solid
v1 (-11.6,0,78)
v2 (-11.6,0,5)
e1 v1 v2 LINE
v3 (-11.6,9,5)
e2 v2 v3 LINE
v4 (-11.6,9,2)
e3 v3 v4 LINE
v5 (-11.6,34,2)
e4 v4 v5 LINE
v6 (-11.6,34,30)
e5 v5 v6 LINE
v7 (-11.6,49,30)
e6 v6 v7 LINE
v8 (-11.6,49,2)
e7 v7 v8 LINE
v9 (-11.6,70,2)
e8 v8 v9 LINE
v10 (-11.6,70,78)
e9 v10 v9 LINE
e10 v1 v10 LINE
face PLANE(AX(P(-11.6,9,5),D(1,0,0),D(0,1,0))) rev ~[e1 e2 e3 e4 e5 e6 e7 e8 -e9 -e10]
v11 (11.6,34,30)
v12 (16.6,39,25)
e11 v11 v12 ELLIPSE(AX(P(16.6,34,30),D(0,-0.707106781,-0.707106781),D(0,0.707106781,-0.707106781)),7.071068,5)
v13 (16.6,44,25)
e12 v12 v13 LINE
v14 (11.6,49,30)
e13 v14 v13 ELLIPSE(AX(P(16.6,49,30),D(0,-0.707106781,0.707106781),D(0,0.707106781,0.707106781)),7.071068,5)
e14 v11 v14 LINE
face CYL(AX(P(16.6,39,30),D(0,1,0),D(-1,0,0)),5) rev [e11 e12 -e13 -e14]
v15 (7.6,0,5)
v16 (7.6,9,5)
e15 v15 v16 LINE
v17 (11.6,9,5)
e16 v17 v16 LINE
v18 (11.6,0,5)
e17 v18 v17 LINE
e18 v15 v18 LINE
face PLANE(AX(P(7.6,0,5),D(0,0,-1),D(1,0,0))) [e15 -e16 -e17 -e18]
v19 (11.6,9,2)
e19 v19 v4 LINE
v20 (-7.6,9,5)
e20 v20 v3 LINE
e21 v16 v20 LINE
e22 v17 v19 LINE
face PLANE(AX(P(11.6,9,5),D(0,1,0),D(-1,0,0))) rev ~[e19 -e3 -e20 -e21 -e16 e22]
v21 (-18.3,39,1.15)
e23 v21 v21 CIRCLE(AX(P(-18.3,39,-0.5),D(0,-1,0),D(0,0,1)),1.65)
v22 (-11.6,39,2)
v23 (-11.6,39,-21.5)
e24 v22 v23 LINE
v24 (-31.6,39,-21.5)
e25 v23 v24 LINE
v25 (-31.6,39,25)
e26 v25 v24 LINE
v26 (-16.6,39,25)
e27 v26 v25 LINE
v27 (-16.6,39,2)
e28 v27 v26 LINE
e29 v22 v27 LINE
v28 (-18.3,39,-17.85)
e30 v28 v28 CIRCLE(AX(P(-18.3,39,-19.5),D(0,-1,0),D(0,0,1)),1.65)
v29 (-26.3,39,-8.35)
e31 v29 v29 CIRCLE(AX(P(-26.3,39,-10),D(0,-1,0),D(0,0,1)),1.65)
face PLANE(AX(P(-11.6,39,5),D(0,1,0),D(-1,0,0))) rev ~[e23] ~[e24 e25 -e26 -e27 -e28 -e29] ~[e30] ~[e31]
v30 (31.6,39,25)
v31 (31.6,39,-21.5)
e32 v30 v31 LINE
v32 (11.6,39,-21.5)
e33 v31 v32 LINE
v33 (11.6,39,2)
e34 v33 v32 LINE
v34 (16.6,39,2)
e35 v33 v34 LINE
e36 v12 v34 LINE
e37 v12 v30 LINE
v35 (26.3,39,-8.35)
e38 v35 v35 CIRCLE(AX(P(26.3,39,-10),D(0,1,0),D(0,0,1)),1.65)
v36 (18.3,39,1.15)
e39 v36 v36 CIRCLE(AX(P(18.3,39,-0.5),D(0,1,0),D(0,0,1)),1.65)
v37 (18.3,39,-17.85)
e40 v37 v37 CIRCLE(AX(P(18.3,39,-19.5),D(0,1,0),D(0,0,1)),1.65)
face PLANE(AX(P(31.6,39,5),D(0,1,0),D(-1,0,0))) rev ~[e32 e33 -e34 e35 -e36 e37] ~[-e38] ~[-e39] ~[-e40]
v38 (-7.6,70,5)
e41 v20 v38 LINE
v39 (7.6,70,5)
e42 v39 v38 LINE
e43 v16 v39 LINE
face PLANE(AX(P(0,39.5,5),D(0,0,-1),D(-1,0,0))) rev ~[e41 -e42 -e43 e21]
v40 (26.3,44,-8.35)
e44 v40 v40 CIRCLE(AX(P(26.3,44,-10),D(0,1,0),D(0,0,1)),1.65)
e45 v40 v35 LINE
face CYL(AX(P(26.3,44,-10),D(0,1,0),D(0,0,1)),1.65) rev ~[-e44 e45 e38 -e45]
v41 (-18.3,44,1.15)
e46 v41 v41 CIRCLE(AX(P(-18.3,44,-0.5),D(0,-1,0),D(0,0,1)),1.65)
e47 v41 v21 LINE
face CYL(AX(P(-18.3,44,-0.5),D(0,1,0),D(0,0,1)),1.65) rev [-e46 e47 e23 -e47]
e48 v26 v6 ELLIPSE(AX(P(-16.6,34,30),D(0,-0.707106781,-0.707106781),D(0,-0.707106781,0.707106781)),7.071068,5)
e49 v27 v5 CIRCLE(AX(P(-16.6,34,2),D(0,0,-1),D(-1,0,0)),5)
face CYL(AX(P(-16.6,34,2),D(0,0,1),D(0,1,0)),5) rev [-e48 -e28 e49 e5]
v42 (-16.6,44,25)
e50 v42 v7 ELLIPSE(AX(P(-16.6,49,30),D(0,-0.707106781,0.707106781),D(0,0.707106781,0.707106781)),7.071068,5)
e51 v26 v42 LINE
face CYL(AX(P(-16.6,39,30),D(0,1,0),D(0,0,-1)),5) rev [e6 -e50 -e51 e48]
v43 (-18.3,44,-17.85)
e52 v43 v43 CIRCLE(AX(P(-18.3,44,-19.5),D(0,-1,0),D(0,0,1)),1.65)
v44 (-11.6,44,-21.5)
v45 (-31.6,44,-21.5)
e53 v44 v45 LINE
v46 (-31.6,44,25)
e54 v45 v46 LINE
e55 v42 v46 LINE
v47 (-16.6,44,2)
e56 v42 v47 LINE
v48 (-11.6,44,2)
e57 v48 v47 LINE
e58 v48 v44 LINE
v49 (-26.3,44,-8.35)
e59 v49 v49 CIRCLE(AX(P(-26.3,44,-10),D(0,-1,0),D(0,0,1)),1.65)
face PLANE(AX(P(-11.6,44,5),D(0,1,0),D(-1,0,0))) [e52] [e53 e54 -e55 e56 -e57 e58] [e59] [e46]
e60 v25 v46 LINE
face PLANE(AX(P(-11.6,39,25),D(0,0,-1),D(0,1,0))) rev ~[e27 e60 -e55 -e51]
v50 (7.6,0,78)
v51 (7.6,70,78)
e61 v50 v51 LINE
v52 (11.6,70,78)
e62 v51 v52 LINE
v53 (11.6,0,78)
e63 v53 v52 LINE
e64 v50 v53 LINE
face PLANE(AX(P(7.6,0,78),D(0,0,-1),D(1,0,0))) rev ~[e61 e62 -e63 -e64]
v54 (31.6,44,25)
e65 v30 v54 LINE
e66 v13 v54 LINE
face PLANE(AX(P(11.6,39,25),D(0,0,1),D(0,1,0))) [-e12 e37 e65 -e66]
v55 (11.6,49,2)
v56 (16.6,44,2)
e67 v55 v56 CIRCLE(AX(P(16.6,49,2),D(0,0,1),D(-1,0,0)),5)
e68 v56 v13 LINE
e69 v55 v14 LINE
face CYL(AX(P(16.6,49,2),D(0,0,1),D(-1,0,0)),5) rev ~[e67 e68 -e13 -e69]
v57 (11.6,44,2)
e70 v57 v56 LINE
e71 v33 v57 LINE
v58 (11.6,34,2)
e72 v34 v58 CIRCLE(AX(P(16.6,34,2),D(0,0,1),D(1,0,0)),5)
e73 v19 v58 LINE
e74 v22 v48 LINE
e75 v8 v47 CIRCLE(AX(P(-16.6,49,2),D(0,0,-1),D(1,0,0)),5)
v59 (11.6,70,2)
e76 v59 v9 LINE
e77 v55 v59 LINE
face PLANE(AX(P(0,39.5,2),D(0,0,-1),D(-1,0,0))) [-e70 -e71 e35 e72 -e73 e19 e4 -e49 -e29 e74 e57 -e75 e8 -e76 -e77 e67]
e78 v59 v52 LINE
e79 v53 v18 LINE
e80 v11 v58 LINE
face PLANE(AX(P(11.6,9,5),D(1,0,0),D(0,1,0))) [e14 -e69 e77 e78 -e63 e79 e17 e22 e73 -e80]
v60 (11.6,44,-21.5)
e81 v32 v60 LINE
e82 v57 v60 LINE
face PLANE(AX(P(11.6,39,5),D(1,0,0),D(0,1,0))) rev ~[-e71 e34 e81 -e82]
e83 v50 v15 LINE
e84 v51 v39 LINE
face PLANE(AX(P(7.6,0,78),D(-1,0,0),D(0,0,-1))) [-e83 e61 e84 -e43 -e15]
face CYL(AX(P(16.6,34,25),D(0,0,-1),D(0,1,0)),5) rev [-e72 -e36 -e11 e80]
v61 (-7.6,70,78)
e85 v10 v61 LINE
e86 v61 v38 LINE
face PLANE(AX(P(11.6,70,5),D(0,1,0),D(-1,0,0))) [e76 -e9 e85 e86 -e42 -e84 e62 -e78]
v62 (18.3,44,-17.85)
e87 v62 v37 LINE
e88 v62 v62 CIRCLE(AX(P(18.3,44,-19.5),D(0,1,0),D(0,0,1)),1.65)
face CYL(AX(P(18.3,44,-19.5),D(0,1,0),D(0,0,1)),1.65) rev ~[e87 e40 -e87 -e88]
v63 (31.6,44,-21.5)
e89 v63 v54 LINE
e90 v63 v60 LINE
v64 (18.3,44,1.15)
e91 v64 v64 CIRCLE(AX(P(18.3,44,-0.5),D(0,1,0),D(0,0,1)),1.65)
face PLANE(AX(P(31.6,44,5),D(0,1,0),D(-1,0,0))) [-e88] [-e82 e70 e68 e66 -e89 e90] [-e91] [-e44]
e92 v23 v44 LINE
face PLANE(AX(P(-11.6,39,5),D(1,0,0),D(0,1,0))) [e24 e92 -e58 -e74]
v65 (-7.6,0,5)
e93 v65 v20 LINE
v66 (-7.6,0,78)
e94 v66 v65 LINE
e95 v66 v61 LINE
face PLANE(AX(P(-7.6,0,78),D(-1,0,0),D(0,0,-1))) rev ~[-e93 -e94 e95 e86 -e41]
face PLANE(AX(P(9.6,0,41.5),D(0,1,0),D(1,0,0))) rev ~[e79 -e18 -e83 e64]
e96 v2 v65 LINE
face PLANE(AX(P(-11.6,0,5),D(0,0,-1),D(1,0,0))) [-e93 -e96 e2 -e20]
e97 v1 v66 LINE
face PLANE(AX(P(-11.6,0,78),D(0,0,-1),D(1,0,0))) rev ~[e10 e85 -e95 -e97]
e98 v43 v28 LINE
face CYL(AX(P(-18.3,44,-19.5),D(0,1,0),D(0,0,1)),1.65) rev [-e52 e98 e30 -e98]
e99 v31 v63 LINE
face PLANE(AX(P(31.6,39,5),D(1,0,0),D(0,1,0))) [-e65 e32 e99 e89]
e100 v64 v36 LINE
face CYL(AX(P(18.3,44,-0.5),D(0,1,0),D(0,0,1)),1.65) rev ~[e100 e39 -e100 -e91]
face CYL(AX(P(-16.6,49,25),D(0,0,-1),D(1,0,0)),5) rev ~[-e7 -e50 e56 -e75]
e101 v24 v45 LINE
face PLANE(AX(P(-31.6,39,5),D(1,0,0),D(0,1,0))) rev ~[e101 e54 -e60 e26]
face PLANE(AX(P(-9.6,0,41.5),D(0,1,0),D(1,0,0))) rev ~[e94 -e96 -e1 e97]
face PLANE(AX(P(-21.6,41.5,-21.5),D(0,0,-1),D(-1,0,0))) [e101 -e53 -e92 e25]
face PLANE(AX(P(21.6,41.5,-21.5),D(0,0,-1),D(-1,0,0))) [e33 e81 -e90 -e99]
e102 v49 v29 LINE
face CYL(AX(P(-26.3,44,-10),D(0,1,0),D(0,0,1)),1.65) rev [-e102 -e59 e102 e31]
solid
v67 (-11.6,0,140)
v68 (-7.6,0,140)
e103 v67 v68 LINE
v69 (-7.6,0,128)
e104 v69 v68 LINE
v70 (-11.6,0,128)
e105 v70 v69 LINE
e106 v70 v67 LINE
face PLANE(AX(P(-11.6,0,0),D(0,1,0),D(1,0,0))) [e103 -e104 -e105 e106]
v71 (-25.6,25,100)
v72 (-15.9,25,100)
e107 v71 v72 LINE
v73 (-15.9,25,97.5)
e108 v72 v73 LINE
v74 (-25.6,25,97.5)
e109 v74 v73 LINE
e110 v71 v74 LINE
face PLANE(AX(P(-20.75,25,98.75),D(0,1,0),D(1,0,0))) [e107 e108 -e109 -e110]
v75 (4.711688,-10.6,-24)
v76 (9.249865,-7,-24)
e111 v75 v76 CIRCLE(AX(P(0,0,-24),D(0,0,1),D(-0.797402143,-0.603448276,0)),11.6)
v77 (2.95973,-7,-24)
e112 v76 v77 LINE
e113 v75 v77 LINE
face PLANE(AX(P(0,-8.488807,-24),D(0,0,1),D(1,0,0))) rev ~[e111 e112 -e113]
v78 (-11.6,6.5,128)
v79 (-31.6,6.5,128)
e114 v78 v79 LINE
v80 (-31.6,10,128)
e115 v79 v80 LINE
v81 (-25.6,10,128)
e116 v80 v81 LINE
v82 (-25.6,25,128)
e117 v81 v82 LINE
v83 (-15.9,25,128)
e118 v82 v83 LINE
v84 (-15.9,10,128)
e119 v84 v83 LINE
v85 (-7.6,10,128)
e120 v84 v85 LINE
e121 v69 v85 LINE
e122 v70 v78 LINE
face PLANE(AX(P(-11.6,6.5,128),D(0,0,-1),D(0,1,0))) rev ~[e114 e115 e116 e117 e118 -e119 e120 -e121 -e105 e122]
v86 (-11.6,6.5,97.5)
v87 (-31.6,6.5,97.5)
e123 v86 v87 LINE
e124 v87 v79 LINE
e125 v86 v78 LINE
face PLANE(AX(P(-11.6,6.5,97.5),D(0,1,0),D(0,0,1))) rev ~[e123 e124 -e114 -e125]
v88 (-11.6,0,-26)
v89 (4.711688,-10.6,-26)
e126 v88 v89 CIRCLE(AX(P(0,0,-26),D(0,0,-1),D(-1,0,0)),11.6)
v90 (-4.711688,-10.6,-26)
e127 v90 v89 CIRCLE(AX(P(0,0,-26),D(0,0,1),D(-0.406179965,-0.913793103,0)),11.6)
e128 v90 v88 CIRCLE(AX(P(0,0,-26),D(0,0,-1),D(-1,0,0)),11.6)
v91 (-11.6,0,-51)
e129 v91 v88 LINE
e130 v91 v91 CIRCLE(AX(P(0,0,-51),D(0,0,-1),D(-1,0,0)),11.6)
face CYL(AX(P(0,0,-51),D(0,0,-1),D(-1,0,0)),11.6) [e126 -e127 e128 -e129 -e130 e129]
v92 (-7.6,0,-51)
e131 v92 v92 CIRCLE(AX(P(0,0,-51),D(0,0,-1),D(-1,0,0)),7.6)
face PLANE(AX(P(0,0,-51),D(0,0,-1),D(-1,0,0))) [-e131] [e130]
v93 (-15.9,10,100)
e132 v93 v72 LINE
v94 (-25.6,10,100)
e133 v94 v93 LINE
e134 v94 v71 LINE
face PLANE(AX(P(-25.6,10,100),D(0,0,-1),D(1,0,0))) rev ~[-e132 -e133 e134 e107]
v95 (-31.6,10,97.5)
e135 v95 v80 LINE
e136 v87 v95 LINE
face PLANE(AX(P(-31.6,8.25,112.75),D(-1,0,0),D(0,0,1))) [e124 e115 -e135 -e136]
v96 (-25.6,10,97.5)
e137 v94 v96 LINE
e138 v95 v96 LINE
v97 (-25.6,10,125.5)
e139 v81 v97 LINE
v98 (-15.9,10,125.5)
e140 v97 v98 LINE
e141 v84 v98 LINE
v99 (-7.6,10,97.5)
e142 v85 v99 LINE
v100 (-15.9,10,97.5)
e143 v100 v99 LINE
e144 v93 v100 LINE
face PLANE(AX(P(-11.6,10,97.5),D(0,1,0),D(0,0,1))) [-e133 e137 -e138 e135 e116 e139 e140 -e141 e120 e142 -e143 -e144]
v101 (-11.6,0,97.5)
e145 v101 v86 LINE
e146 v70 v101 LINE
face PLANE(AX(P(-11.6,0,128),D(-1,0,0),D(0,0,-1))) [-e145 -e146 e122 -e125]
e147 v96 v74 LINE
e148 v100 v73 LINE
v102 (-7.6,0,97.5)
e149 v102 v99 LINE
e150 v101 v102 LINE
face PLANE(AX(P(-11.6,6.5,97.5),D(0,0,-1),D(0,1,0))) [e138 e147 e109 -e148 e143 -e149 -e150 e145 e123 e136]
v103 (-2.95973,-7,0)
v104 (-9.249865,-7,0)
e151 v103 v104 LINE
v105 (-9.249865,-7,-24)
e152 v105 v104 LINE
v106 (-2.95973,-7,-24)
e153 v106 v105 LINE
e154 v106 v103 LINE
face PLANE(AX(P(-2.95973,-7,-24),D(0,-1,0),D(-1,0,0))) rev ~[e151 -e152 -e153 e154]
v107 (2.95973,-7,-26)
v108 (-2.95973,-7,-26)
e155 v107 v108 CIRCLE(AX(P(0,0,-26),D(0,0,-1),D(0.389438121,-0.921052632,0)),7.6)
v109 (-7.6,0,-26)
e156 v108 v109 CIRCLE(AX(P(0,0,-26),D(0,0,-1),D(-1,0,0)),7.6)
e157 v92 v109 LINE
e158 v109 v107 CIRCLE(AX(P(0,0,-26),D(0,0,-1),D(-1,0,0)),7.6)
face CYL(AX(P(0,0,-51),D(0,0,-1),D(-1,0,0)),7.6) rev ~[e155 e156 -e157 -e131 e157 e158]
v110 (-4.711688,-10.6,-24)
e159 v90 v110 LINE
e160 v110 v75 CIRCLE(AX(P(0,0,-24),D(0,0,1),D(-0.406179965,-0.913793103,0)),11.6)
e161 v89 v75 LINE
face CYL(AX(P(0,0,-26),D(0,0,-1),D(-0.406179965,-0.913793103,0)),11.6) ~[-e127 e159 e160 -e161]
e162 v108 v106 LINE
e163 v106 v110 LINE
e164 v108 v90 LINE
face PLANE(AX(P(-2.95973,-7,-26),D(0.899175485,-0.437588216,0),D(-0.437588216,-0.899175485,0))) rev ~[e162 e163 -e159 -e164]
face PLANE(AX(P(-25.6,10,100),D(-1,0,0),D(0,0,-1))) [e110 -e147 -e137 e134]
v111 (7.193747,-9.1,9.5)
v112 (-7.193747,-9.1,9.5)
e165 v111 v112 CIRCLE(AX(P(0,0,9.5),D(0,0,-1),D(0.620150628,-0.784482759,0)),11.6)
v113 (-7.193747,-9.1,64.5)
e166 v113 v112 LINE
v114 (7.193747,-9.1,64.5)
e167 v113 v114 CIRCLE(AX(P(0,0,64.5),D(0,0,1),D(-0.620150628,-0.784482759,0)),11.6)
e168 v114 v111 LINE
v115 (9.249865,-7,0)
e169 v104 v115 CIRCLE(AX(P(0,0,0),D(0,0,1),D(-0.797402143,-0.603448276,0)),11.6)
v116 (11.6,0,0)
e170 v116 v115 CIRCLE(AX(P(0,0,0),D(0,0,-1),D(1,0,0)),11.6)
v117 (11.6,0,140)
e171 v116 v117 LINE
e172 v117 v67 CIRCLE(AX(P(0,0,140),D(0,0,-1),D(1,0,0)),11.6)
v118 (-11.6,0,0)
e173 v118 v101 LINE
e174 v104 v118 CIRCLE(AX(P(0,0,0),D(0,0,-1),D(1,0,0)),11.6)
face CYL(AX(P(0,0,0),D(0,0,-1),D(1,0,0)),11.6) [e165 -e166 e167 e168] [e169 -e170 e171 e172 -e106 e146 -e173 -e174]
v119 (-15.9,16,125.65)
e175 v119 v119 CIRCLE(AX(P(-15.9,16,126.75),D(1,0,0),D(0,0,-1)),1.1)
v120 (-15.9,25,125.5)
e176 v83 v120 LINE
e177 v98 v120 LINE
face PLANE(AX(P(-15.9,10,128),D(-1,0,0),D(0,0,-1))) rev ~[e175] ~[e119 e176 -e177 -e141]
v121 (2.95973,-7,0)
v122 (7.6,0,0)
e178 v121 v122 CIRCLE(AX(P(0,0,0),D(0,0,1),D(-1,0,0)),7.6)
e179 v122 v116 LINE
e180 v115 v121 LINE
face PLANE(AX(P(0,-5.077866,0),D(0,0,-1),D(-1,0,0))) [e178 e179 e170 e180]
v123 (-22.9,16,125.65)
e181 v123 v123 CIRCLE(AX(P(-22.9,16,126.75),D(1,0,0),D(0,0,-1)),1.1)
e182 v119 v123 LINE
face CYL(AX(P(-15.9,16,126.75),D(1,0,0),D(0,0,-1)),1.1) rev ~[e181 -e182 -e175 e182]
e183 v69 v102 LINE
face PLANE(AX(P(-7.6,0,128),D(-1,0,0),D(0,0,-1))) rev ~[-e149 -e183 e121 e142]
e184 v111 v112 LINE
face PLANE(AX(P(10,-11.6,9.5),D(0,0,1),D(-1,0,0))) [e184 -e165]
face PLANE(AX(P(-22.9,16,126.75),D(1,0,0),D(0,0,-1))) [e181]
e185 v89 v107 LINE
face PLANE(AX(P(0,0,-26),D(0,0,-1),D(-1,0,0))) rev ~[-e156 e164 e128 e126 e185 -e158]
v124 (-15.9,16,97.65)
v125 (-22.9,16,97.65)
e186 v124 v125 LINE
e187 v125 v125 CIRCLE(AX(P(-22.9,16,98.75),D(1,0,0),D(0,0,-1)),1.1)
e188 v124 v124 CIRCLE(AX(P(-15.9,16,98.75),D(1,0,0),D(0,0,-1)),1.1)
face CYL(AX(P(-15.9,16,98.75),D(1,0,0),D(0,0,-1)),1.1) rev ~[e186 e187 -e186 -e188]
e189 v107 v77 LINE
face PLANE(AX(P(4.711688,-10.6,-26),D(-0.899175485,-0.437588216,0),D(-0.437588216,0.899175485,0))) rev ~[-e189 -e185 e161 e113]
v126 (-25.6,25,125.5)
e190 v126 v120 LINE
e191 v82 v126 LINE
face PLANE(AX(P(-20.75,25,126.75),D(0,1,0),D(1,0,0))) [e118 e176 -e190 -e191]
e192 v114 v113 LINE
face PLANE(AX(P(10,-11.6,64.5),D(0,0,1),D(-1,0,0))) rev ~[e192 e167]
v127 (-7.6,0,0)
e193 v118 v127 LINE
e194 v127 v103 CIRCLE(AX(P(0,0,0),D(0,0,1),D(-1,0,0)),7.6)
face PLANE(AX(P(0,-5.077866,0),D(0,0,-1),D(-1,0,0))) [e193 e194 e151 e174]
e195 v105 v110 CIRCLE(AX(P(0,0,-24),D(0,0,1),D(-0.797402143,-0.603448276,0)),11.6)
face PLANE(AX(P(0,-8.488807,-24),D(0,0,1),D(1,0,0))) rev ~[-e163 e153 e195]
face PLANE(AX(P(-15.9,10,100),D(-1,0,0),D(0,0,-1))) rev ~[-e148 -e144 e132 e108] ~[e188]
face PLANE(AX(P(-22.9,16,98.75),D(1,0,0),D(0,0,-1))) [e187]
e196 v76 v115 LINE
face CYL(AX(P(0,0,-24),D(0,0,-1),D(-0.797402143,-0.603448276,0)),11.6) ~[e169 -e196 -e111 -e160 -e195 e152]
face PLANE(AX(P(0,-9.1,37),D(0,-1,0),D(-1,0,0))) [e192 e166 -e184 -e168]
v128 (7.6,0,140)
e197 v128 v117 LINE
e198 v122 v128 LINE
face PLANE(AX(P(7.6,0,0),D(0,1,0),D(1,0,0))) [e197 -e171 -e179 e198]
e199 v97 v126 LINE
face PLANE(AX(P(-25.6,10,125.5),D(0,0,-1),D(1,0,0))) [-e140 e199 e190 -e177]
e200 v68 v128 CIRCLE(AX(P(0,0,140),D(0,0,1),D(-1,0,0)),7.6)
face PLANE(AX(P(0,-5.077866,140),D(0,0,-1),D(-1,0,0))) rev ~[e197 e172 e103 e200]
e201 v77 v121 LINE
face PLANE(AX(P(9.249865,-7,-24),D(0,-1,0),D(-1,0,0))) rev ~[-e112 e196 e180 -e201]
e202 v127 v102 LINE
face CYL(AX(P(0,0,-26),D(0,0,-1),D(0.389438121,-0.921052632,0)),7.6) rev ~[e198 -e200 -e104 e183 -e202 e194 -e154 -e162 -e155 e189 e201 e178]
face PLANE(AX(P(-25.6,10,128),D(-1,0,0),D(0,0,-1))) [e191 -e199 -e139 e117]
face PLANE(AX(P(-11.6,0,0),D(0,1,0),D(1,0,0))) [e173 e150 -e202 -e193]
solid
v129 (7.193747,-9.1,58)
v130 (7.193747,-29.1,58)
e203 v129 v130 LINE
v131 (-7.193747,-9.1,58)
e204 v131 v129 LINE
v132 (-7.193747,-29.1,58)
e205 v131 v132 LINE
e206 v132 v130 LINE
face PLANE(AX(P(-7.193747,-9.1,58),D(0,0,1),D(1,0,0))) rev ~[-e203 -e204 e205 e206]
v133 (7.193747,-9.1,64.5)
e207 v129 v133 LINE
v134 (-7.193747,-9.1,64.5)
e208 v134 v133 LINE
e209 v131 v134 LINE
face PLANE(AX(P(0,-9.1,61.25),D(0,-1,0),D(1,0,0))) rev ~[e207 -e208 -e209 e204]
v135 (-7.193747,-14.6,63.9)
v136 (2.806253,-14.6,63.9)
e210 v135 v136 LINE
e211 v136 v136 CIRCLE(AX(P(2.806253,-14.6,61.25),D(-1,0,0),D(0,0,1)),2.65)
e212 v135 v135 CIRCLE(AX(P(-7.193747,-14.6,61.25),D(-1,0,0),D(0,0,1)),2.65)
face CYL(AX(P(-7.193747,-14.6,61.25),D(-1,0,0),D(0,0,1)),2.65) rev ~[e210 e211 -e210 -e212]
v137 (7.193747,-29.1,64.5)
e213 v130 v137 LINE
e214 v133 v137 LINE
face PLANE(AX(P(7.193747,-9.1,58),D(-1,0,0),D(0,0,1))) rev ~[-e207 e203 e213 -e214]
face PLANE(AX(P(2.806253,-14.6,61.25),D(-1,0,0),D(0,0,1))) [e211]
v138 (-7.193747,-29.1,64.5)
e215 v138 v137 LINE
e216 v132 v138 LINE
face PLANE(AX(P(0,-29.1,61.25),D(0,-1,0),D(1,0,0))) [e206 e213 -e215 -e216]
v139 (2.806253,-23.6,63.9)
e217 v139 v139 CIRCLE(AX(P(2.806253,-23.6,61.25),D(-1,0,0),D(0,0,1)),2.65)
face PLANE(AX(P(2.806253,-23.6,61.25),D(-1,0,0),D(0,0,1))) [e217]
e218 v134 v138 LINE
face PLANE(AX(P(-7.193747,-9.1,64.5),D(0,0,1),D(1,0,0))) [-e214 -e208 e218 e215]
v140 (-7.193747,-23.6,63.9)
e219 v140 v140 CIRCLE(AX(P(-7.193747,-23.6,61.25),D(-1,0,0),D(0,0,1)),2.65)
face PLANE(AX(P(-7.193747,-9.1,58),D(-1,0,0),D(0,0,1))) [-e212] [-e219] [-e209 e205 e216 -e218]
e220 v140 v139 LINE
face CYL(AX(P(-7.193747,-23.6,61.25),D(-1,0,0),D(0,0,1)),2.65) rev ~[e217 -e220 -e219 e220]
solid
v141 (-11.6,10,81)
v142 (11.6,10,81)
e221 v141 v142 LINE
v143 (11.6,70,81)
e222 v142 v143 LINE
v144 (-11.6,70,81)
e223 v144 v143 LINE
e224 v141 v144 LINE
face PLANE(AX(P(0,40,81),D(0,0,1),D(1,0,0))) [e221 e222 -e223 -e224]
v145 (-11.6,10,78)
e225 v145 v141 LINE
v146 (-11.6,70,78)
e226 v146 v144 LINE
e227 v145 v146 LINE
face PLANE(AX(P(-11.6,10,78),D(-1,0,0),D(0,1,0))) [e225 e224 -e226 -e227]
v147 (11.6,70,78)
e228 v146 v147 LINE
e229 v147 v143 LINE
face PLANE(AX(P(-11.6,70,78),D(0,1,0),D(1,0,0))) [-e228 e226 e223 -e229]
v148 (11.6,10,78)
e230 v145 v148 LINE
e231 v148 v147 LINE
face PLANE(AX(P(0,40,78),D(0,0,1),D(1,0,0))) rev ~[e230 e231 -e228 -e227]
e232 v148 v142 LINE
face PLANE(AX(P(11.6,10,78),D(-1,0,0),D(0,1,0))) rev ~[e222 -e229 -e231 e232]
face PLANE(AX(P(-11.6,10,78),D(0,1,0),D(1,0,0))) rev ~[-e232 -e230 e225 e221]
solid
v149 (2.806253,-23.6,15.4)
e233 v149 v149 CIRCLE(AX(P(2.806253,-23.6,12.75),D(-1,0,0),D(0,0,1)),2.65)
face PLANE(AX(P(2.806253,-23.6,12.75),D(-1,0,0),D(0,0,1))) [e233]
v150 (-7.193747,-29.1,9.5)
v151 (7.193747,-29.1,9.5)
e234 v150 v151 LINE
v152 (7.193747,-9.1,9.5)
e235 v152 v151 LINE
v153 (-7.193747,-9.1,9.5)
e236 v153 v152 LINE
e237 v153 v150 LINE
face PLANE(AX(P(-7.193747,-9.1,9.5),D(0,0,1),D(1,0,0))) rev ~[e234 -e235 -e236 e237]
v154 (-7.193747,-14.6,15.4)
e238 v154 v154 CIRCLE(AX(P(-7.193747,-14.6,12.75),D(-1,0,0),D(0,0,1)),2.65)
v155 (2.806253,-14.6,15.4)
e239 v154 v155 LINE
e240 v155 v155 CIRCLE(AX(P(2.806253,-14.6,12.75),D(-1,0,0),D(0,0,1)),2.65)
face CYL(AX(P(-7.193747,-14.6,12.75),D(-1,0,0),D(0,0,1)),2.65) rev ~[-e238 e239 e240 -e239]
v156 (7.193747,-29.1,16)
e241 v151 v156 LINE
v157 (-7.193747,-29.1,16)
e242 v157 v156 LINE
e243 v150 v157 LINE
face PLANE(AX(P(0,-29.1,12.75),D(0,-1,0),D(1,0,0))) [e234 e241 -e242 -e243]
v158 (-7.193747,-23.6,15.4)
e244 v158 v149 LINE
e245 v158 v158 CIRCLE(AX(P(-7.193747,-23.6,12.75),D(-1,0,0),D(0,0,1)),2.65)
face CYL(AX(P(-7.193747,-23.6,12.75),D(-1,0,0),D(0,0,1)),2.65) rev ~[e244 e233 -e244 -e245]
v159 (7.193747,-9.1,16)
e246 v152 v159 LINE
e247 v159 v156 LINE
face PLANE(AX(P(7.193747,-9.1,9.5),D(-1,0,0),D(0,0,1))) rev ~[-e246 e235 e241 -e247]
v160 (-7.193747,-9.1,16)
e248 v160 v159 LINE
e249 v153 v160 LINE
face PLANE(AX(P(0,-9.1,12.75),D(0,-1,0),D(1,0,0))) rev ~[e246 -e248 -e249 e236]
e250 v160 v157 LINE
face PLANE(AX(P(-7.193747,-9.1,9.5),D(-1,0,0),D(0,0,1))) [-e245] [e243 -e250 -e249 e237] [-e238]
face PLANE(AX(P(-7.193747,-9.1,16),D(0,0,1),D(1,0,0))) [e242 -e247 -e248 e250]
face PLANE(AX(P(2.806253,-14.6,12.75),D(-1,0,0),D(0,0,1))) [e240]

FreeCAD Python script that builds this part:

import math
import FreeCAD as App
import Part
import Sketcher
from FreeCAD import Vector
Q = App.Units.Quantity


def edges_at(feature, points):
    """Names of the edges that pass closest to the given points."""
    edges = feature.Shape.Edges
    near = lambda p: min(range(len(edges)), key=lambda i: edges[i].distToShape(Part.Vertex(*p))[0])
    return sorted({f"Edge{near(p) + 1}" for p in points})


def add_polygon(sketch, points):
    """Adds a closed chain of lines whose ends are joined by coincident constraints."""
    first, n = sketch.GeometryCount, len(points)
    for a, b in zip(points, points[1:] + points[:1]):
        sketch.addGeometry(Part.LineSegment(App.Vector(*a, 0), App.Vector(*b, 0)), False)
    for i in range(n):
        sketch.addConstraint(Sketcher.Constraint("Coincident", first + i, 2, first + (i + 1) % n, 1))

doc = App.newDocument("Part")
body = doc.addObject("PartDesign::Body", "Body")

sketch1 = doc.addObject("Sketcher::SketchObject", "Sketch")
body.addObject(sketch1)
sketch1.AttachmentSupport = (doc.XY_Plane, [""])
sketch1.MapMode = "FlatFace"
sketch1.addGeometry(Part.LineSegment(Vector(-7.6, 0, 0), Vector(-11.6, 0, 0)), False)
sketch1.addGeometry(Part.ArcOfCircle(Part.Circle(Vector(0, 0, 0), Vector(0, 0, 1), 11.6), math.radians(180), math.radians(360)), False)
sketch1.addGeometry(Part.LineSegment(Vector(11.6, 0, 0), Vector(7.6, 0, 0)), False)
sketch1.addGeometry(Part.ArcOfCircle(Part.Circle(Vector(0, 0, 0), Vector(0, 0, 1), 7.6), math.radians(180), math.radians(360)), False)
sketch1.addConstraint(Sketcher.Constraint("Coincident", 0, 2, 1, 1))
sketch1.addConstraint(Sketcher.Constraint("Coincident", 1, 2, 2, 1))
sketch1.addConstraint(Sketcher.Constraint("Coincident", 2, 2, 3, 2))
sketch1.addConstraint(Sketcher.Constraint("Coincident", 3, 1, 0, 1))
sketch1.addConstraint(Sketcher.Constraint("Horizontal", 0))
sketch1.addConstraint(Sketcher.Constraint("Horizontal", 2))
sketch1.addConstraint(Sketcher.Constraint("Coincident", 1, 3, -1, 1))
sketch1.addConstraint(Sketcher.Constraint("Coincident", 3, 3, -1, 1))
sketch1.addConstraint(Sketcher.Constraint("PointOnObject", 0, 2, -1))
sketch1.addConstraint(Sketcher.Constraint("PointOnObject", 1, 2, -1))
sketch1.addConstraint(Sketcher.Constraint("Radius", 1, Q("11.6 mm")))
sketch1.addConstraint(Sketcher.Constraint("Radius", 3, Q("7.6 mm")))
pad1 = doc.addObject("PartDesign::Pad", "Pad")
body.addObject(pad1)
pad1.Profile = sketch1
pad1.Length = 140

sketch2 = doc.addObject("Sketcher::SketchObject", "Sketch001")
body.addObject(sketch2)
sketch2.AttachmentSupport = (doc.XZ_Plane, [""])
sketch2.MapMode = "FlatFace"
add_polygon(sketch2, [(-11.6, 97.5), (-11.6, 128), (-7.6, 128), (-7.6, 97.5)])
sketch2.addConstraint(Sketcher.Constraint("Vertical", 0))
sketch2.addConstraint(Sketcher.Constraint("Horizontal", 1))
sketch2.addConstraint(Sketcher.Constraint("Vertical", 2))
sketch2.addConstraint(Sketcher.Constraint("Horizontal", 3))
sketch2.addConstraint(Sketcher.Constraint("DistanceX", 1, 1, 1, 2, Q("4 mm")))
sketch2.addConstraint(Sketcher.Constraint("DistanceY", 0, 1, 0, 2, Q("30.5 mm")))
sketch2.addConstraint(Sketcher.Constraint("DistanceY", -1, 1, 0, 2, Q("128 mm")))
sketch2.addConstraint(Sketcher.Constraint("DistanceX", 0, 2, -1, 1, Q("11.6 mm")))
pad2 = doc.addObject("PartDesign::Pad", "Pad001")
body.addObject(pad2)
pad2.Profile = sketch2
pad2.Length = 10
pad2.Reversed = True

sketch3 = doc.addObject("Sketcher::SketchObject", "Sketch002")
body.addObject(sketch3)
sketch3.AttachmentSupport = (doc.YZ_Plane, [""])
sketch3.MapMode = "FlatFace"
sketch3.AttachmentOffset = App.Placement(Vector(0, 0, -11.6), App.Rotation())
add_polygon(sketch3, [(10, 97.5), (6.5, 97.5), (6.5, 128), (10, 128)])
sketch3.addConstraint(Sketcher.Constraint("Horizontal", 0))
sketch3.addConstraint(Sketcher.Constraint("Vertical", 1))
sketch3.addConstraint(Sketcher.Constraint("Horizontal", 2))
sketch3.addConstraint(Sketcher.Constraint("Vertical", 3))
sketch3.addConstraint(Sketcher.Constraint("DistanceX", 0, 2, 0, 1, Q("3.5 mm")))
sketch3.addConstraint(Sketcher.Constraint("DistanceY", 1, 1, 1, 2, Q("30.5 mm")))
sketch3.addConstraint(Sketcher.Constraint("DistanceY", -1, 1, 1, 2, Q("128 mm")))
sketch3.addConstraint(Sketcher.Constraint("DistanceX", -1, 1, 2, 2, Q("10 mm")))
pad3 = doc.addObject("PartDesign::Pad", "Pad002")
body.addObject(pad3)
pad3.Profile = sketch3
pad3.Length = 20
pad3.Reversed = True

sketch4 = doc.addObject("Sketcher::SketchObject", "Sketch003")
body.addObject(sketch4)
sketch4.AttachmentSupport = (doc.XZ_Plane, [""])
sketch4.MapMode = "FlatFace"
sketch4.AttachmentOffset = App.Placement(Vector(0, 0, -10), App.Rotation())
add_polygon(sketch4, [(-25.6, 125.5), (-25.6, 128), (-15.9, 128), (-15.9, 125.5)])
add_polygon(sketch4, [(-25.6, 97.5), (-25.6, 100), (-15.9, 100), (-15.9, 97.5)])
sketch4.addConstraint(Sketcher.Constraint("Vertical", 0))
sketch4.addConstraint(Sketcher.Constraint("Horizontal", 1))
sketch4.addConstraint(Sketcher.Constraint("Vertical", 2))
sketch4.addConstraint(Sketcher.Constraint("Horizontal", 3))
sketch4.addConstraint(Sketcher.Constraint("Vertical", 4))
sketch4.addConstraint(Sketcher.Constraint("Horizontal", 5))
sketch4.addConstraint(Sketcher.Constraint("Vertical", 6))
sketch4.addConstraint(Sketcher.Constraint("Horizontal", 7))
sketch4.addConstraint(Sketcher.Constraint("Vertical", 3, 2, 4, 2))
sketch4.addConstraint(Sketcher.Constraint("Vertical", 2, 2, 5, 2))
sketch4.addConstraint(Sketcher.Constraint("Equal", 2, 4))
sketch4.addConstraint(Sketcher.Constraint("DistanceX", 1, 1, 1, 2, Q("9.7 mm")))
sketch4.addConstraint(Sketcher.Constraint("DistanceY", 0, 1, 0, 2, Q("2.5 mm")))
sketch4.addConstraint(Sketcher.Constraint("DistanceY", -1, 1, 0, 2, Q("128 mm")))
sketch4.addConstraint(Sketcher.Constraint("DistanceY", -1, 1, 4, 2, Q("100 mm")))
sketch4.addConstraint(Sketcher.Constraint("DistanceX", 0, 2, -1, 1, Q("25.6 mm")))
pad4 = doc.addObject("PartDesign::Pad", "Pad003")
body.addObject(pad4)
pad4.Profile = sketch4
pad4.Length = 15
pad4.Reversed = True

sketch5 = doc.addObject("Sketcher::SketchObject", "Sketch004")
body.addObject(sketch5)
sketch5.AttachmentSupport = (doc.YZ_Plane, [""])
sketch5.MapMode = "FlatFace"
sketch5.AttachmentOffset = App.Placement(Vector(0, 0, -15.9), App.Rotation())
sketch5.addGeometry(Part.Circle(Vector(16, 98.8, 0), Vector(0, 0, 1), 1.1), False)
sketch5.addGeometry(Part.Circle(Vector(16, 126.8, 0), Vector(0, 0, 1), 1.1), False)
sketch5.addConstraint(Sketcher.Constraint("Equal", 0, 1))
sketch5.addConstraint(Sketcher.Constraint("Vertical", 0, 3, 1, 3))
sketch5.addConstraint(Sketcher.Constraint("Diameter", 0, Q("2.2 mm")))
sketch5.addConstraint(Sketcher.Constraint("DistanceX", -1, 1, 0, 3, Q("16 mm")))
sketch5.addConstraint(Sketcher.Constraint("DistanceY", 0, 3, 1, 3, Q("28 mm")))
sketch5.addConstraint(Sketcher.Constraint("DistanceY", -1, 1, 0, 3, Q("98.75 mm")))
pocket1 = doc.addObject("PartDesign::Pocket", "Pocket")
body.addObject(pocket1)
pocket1.Profile = sketch5
pocket1.Length = 7

sketch6 = doc.addObject("Sketcher::SketchObject", "Sketch005")
body.addObject(sketch6)
sketch6.AttachmentSupport = (doc.XY_Plane, [""])
sketch6.MapMode = "FlatFace"
sketch6.AttachmentOffset = App.Placement(Vector(0, 0, -24), App.Rotation())
sketch6.addGeometry(Part.LineSegment(Vector(3, -7, 0), Vector(9, -7, 0)), False)
sketch6.addGeometry(Part.ArcOfCircle(Part.Circle(Vector(0, 0, 0), Vector(0, 0, 1), 12), math.radians(-143), math.radians(-37)), False)
sketch6.addGeometry(Part.LineSegment(Vector(-9, -7, 0), Vector(-3, -7, 0)), False)
sketch6.addGeometry(Part.ArcOfCircle(Part.Circle(Vector(0, 0, 0), Vector(0, 0, 1), 8), math.radians(-113), math.radians(-67)), False)
sketch6.addConstraint(Sketcher.Constraint("Coincident", 0, 2, 1, 2))
sketch6.addConstraint(Sketcher.Constraint("Coincident", 1, 1, 2, 1))
sketch6.addConstraint(Sketcher.Constraint("Coincident", 2, 2, 3, 1))
sketch6.addConstraint(Sketcher.Constraint("Coincident", 3, 2, 0, 1))
sketch6.addConstraint(Sketcher.Constraint("Horizontal", 0))
sketch6.addConstraint(Sketcher.Constraint("Horizontal", 2))
sketch6.addConstraint(Sketcher.Constraint("Coincident", 1, 3, -1, 1))
sketch6.addConstraint(Sketcher.Constraint("Coincident", 3, 3, -1, 1))
sketch6.addConstraint(Sketcher.Constraint("Horizontal", 0, 2, 1, 1))
sketch6.addConstraint(Sketcher.Constraint("Radius", 1, Q("11.6 mm")))
sketch6.addConstraint(Sketcher.Constraint("Radius", 3, Q("7.6 mm")))
sketch6.addConstraint(Sketcher.Constraint("DistanceY", 0, 2, -1, 1, Q("7 mm")))
pad5 = doc.addObject("PartDesign::Pad", "Pad004")
body.addObject(pad5)
pad5.Profile = sketch6
pad5.Length = 24

sketch7 = doc.addObject("Sketcher::SketchObject", "Sketch006")
body.addObject(sketch7)
sketch7.AttachmentSupport = (doc.XZ_Plane, [""])
sketch7.MapMode = "FlatFace"
sketch7.AttachmentOffset = App.Placement(Vector(0, 0, 11.6), App.Rotation())
add_polygon(sketch7, [(10, 10), (10, 64), (-10, 64), (-10, 10)])
sketch7.addConstraint(Sketcher.Constraint("Vertical", 0))
sketch7.addConstraint(Sketcher.Constraint("Horizontal", 1))
sketch7.addConstraint(Sketcher.Constraint("Vertical", 2))
sketch7.addConstraint(Sketcher.Constraint("Horizontal", 3))
sketch7.addConstraint(Sketcher.Constraint("DistanceX", 1, 2, 1, 1, Q("20 mm")))
sketch7.addConstraint(Sketcher.Constraint("DistanceY", 0, 1, 0, 2, Q("55 mm")))
sketch7.addConstraint(Sketcher.Constraint("DistanceX", -1, 1, 0, 2, Q("10 mm")))
sketch7.addConstraint(Sketcher.Constraint("DistanceY", -1, 1, 0, 2, Q("64.5 mm")))
pocket2 = doc.addObject("PartDesign::Pocket", "Pocket001")
body.addObject(pocket2)
pocket2.Profile = sketch7
pocket2.Length = 2.5

sketch8 = doc.addObject("Sketcher::SketchObject", "Sketch007")
body.addObject(sketch8)
sketch8.AttachmentSupport = (doc.XY_Plane, [""])
sketch8.MapMode = "FlatFace"
sketch8.AttachmentOffset = App.Placement(Vector(0, 0, -26), App.Rotation())
sketch8.addGeometry(Part.LineSegment(Vector(3, -7, 0), Vector(4.7, -10.6, 0)), False)
sketch8.addGeometry(Part.ArcOfCircle(Part.Circle(Vector(0, 0, 0), Vector(0, 0, 1), 11.6), math.radians(-114), math.radians(-66)), False)
sketch8.addGeometry(Part.LineSegment(Vector(-4.7, -10.6, 0), Vector(-3, -7, 0)), False)
sketch8.addGeometry(Part.ArcOfCircle(Part.Circle(Vector(0, 0, 0), Vector(0, 0, 1), 7.6), math.radians(-113), math.radians(-67)), False)
sketch8.addConstraint(Sketcher.Constraint("Coincident", 0, 2, 1, 2))
sketch8.addConstraint(Sketcher.Constraint("Coincident", 1, 1, 2, 1))
sketch8.addConstraint(Sketcher.Constraint("Coincident", 2, 2, 3, 1))
sketch8.addConstraint(Sketcher.Constraint("Coincident", 3, 2, 0, 1))
sketch8.addConstraint(Sketcher.Constraint("Coincident", 1, 3, -1, 1))
sketch8.addConstraint(Sketcher.Constraint("Coincident", 3, 3, -1, 1))
sketch8.addConstraint(Sketcher.Constraint("Horizontal", 0, 2, 1, 1))
sketch8.addConstraint(Sketcher.Constraint("Horizontal", 2, 2, 3, 2))
sketch8.addConstraint(Sketcher.Constraint("Radius", 1, Q("11.6 mm")))
sketch8.addConstraint(Sketcher.Constraint("Radius", 3, Q("7.6 mm")))
sketch8.addConstraint(Sketcher.Constraint("DistanceY", 2, 2, -1, 1, Q("7 mm")))
sketch8.addConstraint(Sketcher.Constraint("DistanceY", 0, 2, -1, 1, Q("10.6 mm")))
pad6 = doc.addObject("PartDesign::Pad", "Pad005")
body.addObject(pad6)
pad6.Profile = sketch8
pad6.Length = 2

sketch9 = doc.addObject("Sketcher::SketchObject", "Sketch008")
body.addObject(sketch9)
sketch9.AttachmentSupport = (doc.XY_Plane, [""])
sketch9.MapMode = "FlatFace"
sketch9.AttachmentOffset = App.Placement(Vector(0, 0, -51), App.Rotation())
sketch9.addGeometry(Part.Circle(Vector(0, 0, 0), Vector(0, 0, 1), 12), False)
sketch9.addGeometry(Part.Circle(Vector(0, 0, 0), Vector(0, 0, 1), 8), False)
sketch9.addConstraint(Sketcher.Constraint("Coincident", 0, 3, -1, 1))
sketch9.addConstraint(Sketcher.Constraint("Coincident", 1, 3, -1, 1))
sketch9.addConstraint(Sketcher.Constraint("Diameter", 0, Q("23.2 mm")))
sketch9.addConstraint(Sketcher.Constraint("Diameter", 1, Q("15.2 mm")))
pad7 = doc.addObject("PartDesign::Pad", "Pad006")
body.addObject(pad7)
pad7.Profile = sketch9
pad7.Length = 25
body2 = doc.addObject("PartDesign::Body", "Body001")

sketch10 = doc.addObject("Sketcher::SketchObject", "Sketch009")
body2.addObject(sketch10)
sketch10.AttachmentSupport = (doc.getObject("XZ_Plane001"), [""])
sketch10.MapMode = "FlatFace"
add_polygon(sketch10, [(-11.6, 5), (-11.6, 78), (-7.6, 78), (-7.6, 5)])
sketch10.addConstraint(Sketcher.Constraint("Vertical", 0))
sketch10.addConstraint(Sketcher.Constraint("Horizontal", 1))
sketch10.addConstraint(Sketcher.Constraint("Vertical", 2))
sketch10.addConstraint(Sketcher.Constraint("Horizontal", 3))
sketch10.addConstraint(Sketcher.Constraint("DistanceX", 1, 1, 1, 2, Q("4 mm")))
sketch10.addConstraint(Sketcher.Constraint("DistanceY", 0, 1, 0, 2, Q("73 mm")))
sketch10.addConstraint(Sketcher.Constraint("DistanceY", -1, 1, 0, 2, Q("78 mm")))
sketch10.addConstraint(Sketcher.Constraint("DistanceX", 0, 2, -1, 1, Q("11.6 mm")))
pad8 = doc.addObject("PartDesign::Pad", "Pad007")
body2.addObject(pad8)
pad8.Profile = sketch10
pad8.Length = 70
pad8.Reversed = True
body3 = doc.addObject("PartDesign::Body", "Body002")

sketch11 = doc.addObject("Sketcher::SketchObject", "Sketch010")
body3.addObject(sketch11)
sketch11.AttachmentSupport = (doc.getObject("XZ_Plane002"), [""])
sketch11.MapMode = "FlatFace"
add_polygon(sketch11, [(7.6, 5), (7.6, 78), (11.6, 78), (11.6, 5)])
sketch11.addConstraint(Sketcher.Constraint("Vertical", 0))
sketch11.addConstraint(Sketcher.Constraint("Horizontal", 1))
sketch11.addConstraint(Sketcher.Constraint("Vertical", 2))
sketch11.addConstraint(Sketcher.Constraint("Horizontal", 3))
sketch11.addConstraint(Sketcher.Constraint("DistanceX", 1, 1, 1, 2, Q("4 mm")))
sketch11.addConstraint(Sketcher.Constraint("DistanceY", 0, 1, 0, 2, Q("73 mm")))
sketch11.addConstraint(Sketcher.Constraint("DistanceY", -1, 1, 0, 2, Q("78 mm")))
sketch11.addConstraint(Sketcher.Constraint("DistanceX", -1, 1, 0, 2, Q("7.6 mm")))
pad9 = doc.addObject("PartDesign::Pad", "Pad008")
body3.addObject(pad9)
pad9.Profile = sketch11
pad9.Length = 70
pad9.Reversed = True
body4 = doc.addObject("PartDesign::Body", "Body003")

sketch12 = doc.addObject("Sketcher::SketchObject", "Sketch011")
body4.addObject(sketch12)
sketch12.AttachmentSupport = (doc.getObject("XY_Plane003"), [""])
sketch12.MapMode = "FlatFace"
sketch12.AttachmentOffset = App.Placement(Vector(0, 0, 5), App.Rotation())
add_polygon(sketch12, [(12, 70), (12, 9), (-12, 9), (-12, 70)])
sketch12.addConstraint(Sketcher.Constraint("Vertical", 0))
sketch12.addConstraint(Sketcher.Constraint("Horizontal", 1))
sketch12.addConstraint(Sketcher.Constraint("Vertical", 2))
sketch12.addConstraint(Sketcher.Constraint("Horizontal", 3))
sketch12.addConstraint(Sketcher.Constraint("DistanceY", 0, 2, 0, 1, Q("61 mm")))
sketch12.addConstraint(Sketcher.Constraint("DistanceX", 1, 2, 1, 1, Q("23.2 mm")))
sketch12.addConstraint(Sketcher.Constraint("DistanceY", -1, 1, 0, 2, Q("9 mm")))
sketch12.addConstraint(Sketcher.Constraint("DistanceX", -1, 1, 0, 2, Q("11.6 mm")))
pad10 = doc.addObject("PartDesign::Pad", "Pad009")
body4.addObject(pad10)
pad10.Profile = sketch12
pad10.Length = 3
pad10.Reversed = True
body5 = doc.addObject("PartDesign::Body", "Body004")

sketch13 = doc.addObject("Sketcher::SketchObject", "Sketch012")
body5.addObject(sketch13)
sketch13.AttachmentSupport = (doc.getObject("XY_Plane004"), [""])
sketch13.MapMode = "FlatFace"
sketch13.AttachmentOffset = App.Placement(Vector(0, 0, 78), App.Rotation())
add_polygon(sketch13, [(-12, 70), (-12, 10), (12, 10), (12, 70)])
sketch13.addConstraint(Sketcher.Constraint("Vertical", 0))
sketch13.addConstraint(Sketcher.Constraint("Horizontal", 1))
sketch13.addConstraint(Sketcher.Constraint("Vertical", 2))
sketch13.addConstraint(Sketcher.Constraint("Horizontal", 3))
sketch13.addConstraint(Sketcher.Constraint("DistanceY", 0, 2, 0, 1, Q("60 mm")))
sketch13.addConstraint(Sketcher.Constraint("DistanceX", 1, 1, 1, 2, Q("23.2 mm")))
sketch13.addConstraint(Sketcher.Constraint("DistanceY", -1, 1, 0, 2, Q("10 mm")))
sketch13.addConstraint(Sketcher.Constraint("DistanceX", 0, 2, -1, 1, Q("11.6 mm")))
pad11 = doc.addObject("PartDesign::Pad", "Pad010")
body5.addObject(pad11)
pad11.Profile = sketch13
pad11.Length = 3
doc.recompute()

boolean = doc.addObject("PartDesign::Boolean", "Boolean")
body3.addObject(boolean)
boolean.Type = "Fuse"
boolean.addObjects([body4])

sketch14 = doc.addObject("Sketcher::SketchObject", "Sketch013")
body3.addObject(sketch14)
sketch14.AttachmentSupport = (doc.getObject("YZ_Plane002"), [""])
sketch14.MapMode = "FlatFace"
sketch14.AttachmentOffset = App.Placement(Vector(0, 0, 11.6), App.Rotation())
add_polygon(sketch14, [(44, 25), (39, 25), (39, 5), (44, 5)])
sketch14.addConstraint(Sketcher.Constraint("Horizontal", 0))
sketch14.addConstraint(Sketcher.Constraint("Vertical", 1))
sketch14.addConstraint(Sketcher.Constraint("Horizontal", 2))
sketch14.addConstraint(Sketcher.Constraint("Vertical", 3))
sketch14.addConstraint(Sketcher.Constraint("DistanceX", 0, 2, 0, 1, Q("5 mm")))
sketch14.addConstraint(Sketcher.Constraint("DistanceY", 1, 2, 1, 1, Q("20 mm")))
sketch14.addConstraint(Sketcher.Constraint("DistanceX", -1, 1, 0, 2, Q("39 mm")))
sketch14.addConstraint(Sketcher.Constraint("DistanceY", -1, 1, 0, 2, Q("25 mm")))
pad12 = doc.addObject("PartDesign::Pad", "Pad011")
body3.addObject(pad12)
pad12.Profile = sketch14
pad12.Length = 20

sketch15 = doc.addObject("Sketcher::SketchObject", "Sketch014")
body3.addObject(sketch15)
sketch15.AttachmentSupport = (doc.getObject("XY_Plane002"), [""])
sketch15.MapMode = "FlatFace"
sketch15.AttachmentOffset = App.Placement(Vector(0, 0, 5), App.Rotation())
add_polygon(sketch15, [(32, 44), (32, 39), (12, 39), (12, 44)])
sketch15.addConstraint(Sketcher.Constraint("Vertical", 0))
sketch15.addConstraint(Sketcher.Constraint("Horizontal", 1))
sketch15.addConstraint(Sketcher.Constraint("Vertical", 2))
sketch15.addConstraint(Sketcher.Constraint("Horizontal", 3))
sketch15.addConstraint(Sketcher.Constraint("DistanceX", 1, 2, 1, 1, Q("20 mm")))
sketch15.addConstraint(Sketcher.Constraint("DistanceY", 0, 2, 0, 1, Q("5 mm")))
sketch15.addConstraint(Sketcher.Constraint("DistanceY", -1, 1, 0, 2, Q("39 mm")))
sketch15.addConstraint(Sketcher.Constraint("DistanceX", -1, 1, 0, 2, Q("31.6 mm")))
pad13 = doc.addObject("PartDesign::Pad", "Pad012")
body3.addObject(pad13)
pad13.Profile = sketch15
pad13.Length = 26.5
pad13.Reversed = True
doc.recompute()

fillet = doc.addObject("PartDesign::Fillet", "Fillet")
body3.addObject(fillet)
fillet.Base = (pad13, edges_at(pad13, [(11.6, 44, 13.5), (11.6, 41.5, 25), (11.6, 39, 13.5)]))
fillet.Radius = 5
doc.recompute()

boolean2 = doc.addObject("PartDesign::Boolean", "Boolean001")
body2.addObject(boolean2)
boolean2.Type = "Fuse"
boolean2.addObjects([body3])

sketch16 = doc.addObject("Sketcher::SketchObject", "Sketch015")
body2.addObject(sketch16)
sketch16.AttachmentSupport = (doc.getObject("YZ_Plane001"), [""])
sketch16.MapMode = "FlatFace"
sketch16.AttachmentOffset = App.Placement(Vector(0, 0, -11.6), App.Rotation())
add_polygon(sketch16, [(44, 5), (39, 5), (39, 25), (44, 25)])
sketch16.addConstraint(Sketcher.Constraint("Horizontal", 0))
sketch16.addConstraint(Sketcher.Constraint("Vertical", 1))
sketch16.addConstraint(Sketcher.Constraint("Horizontal", 2))
sketch16.addConstraint(Sketcher.Constraint("Vertical", 3))
sketch16.addConstraint(Sketcher.Constraint("DistanceX", 0, 2, 0, 1, Q("5 mm")))
sketch16.addConstraint(Sketcher.Constraint("DistanceY", 1, 1, 1, 2, Q("20 mm")))
sketch16.addConstraint(Sketcher.Constraint("DistanceX", -1, 1, 0, 2, Q("39 mm")))
sketch16.addConstraint(Sketcher.Constraint("DistanceY", -1, 1, 0, 2, Q("5 mm")))
pad14 = doc.addObject("PartDesign::Pad", "Pad013")
body2.addObject(pad14)
pad14.Profile = sketch16
pad14.Length = 20
pad14.Reversed = True

sketch17 = doc.addObject("Sketcher::SketchObject", "Sketch016")
body2.addObject(sketch17)
sketch17.AttachmentSupport = (doc.getObject("XY_Plane001"), [""])
sketch17.MapMode = "FlatFace"
sketch17.AttachmentOffset = App.Placement(Vector(0, 0, 5), App.Rotation())
add_polygon(sketch17, [(-12, 44), (-12, 39), (-32, 39), (-32, 44)])
sketch17.addConstraint(Sketcher.Constraint("Vertical", 0))
sketch17.addConstraint(Sketcher.Constraint("Horizontal", 1))
sketch17.addConstraint(Sketcher.Constraint("Vertical", 2))
sketch17.addConstraint(Sketcher.Constraint("Horizontal", 3))
sketch17.addConstraint(Sketcher.Constraint("DistanceX", 1, 2, 1, 1, Q("20 mm")))
sketch17.addConstraint(Sketcher.Constraint("DistanceY", 0, 2, 0, 1, Q("5 mm")))
sketch17.addConstraint(Sketcher.Constraint("DistanceY", -1, 1, 0, 2, Q("39 mm")))
sketch17.addConstraint(Sketcher.Constraint("DistanceX", 0, 2, -1, 1, Q("11.6 mm")))
pad15 = doc.addObject("PartDesign::Pad", "Pad014")
body2.addObject(pad15)
pad15.Profile = sketch17
pad15.Length = 26.5
pad15.Reversed = True
doc.recompute()

fillet2 = doc.addObject("PartDesign::Fillet", "Fillet001")
body2.addObject(fillet2)
fillet2.Base = (pad15, edges_at(pad15, [(-11.6, 39, 13.5), (-11.6, 41.5, 25), (-11.6, 44, 13.5)]))
fillet2.Radius = 5

sketch18 = doc.addObject("Sketcher::SketchObject", "Sketch017")
body2.addObject(sketch18)
sketch18.AttachmentSupport = (doc.getObject("XZ_Plane001"), [""])
sketch18.MapMode = "FlatFace"
sketch18.AttachmentOffset = App.Placement(Vector(0, 0, -44), App.Rotation())
sketch18.addGeometry(Part.Circle(Vector(18.3, -19.5, 0), Vector(0, 0, 1), 1.6), False)
sketch18.addGeometry(Part.Circle(Vector(18.3, -0.5, 0), Vector(0, 0, 1), 1.6), False)
sketch18.addGeometry(Part.Circle(Vector(26.3, -10, 0), Vector(0, 0, 1), 1.6), False)
sketch18.addConstraint(Sketcher.Constraint("Equal", 0, 1))
sketch18.addConstraint(Sketcher.Constraint("Equal", 1, 2))
sketch18.addConstraint(Sketcher.Constraint("Vertical", 0, 3, 1, 3))
sketch18.addConstraint(Sketcher.Constraint("Diameter", 0, Q("3.3 mm")))
sketch18.addConstraint(Sketcher.Constraint("DistanceY", 2, 3, -1, 1, Q("10 mm")))
sketch18.addConstraint(Sketcher.Constraint("DistanceY", 0, 3, 1, 3, Q("19 mm")))
sketch18.addConstraint(Sketcher.Constraint("DistanceX", 0, 3, 2, 3, Q("8 mm")))
sketch18.addConstraint(Sketcher.Constraint("DistanceX", -1, 1, 0, 3, Q("18.3 mm")))
sketch18.addConstraint(Sketcher.Constraint("DistanceY", 0, 3, -1, 1, Q("19.5 mm")))
pocket3 = doc.addObject("PartDesign::Pocket", "Pocket002")
body2.addObject(pocket3)
pocket3.Profile = sketch18
pocket3.Length = 5
pocket3.Reversed = True
doc.recompute()

mirrored = doc.addObject("PartDesign::Mirrored", "Mirrored")
body2.addObject(mirrored)
mirrored.Originals = [pocket3]
mirrored.MirrorPlane = (doc.getObject("YZ_Plane001"), [""])
body2.Tip = mirrored
body6 = doc.addObject("PartDesign::Body", "Body005")

sketch19 = doc.addObject("Sketcher::SketchObject", "Sketch018")
body6.addObject(sketch19)
sketch19.AttachmentSupport = (doc.getObject("XZ_Plane005"), [""])
sketch19.MapMode = "FlatFace"
sketch19.AttachmentOffset = App.Placement(Vector(0, 0, 9.1), App.Rotation())
add_polygon(sketch19, [(-7, 64), (-7, 58), (7, 58), (7, 64)])
sketch19.addConstraint(Sketcher.Constraint("Vertical", 0))
sketch19.addConstraint(Sketcher.Constraint("Horizontal", 1))
sketch19.addConstraint(Sketcher.Constraint("Vertical", 2))
sketch19.addConstraint(Sketcher.Constraint("Horizontal", 3))
sketch19.addConstraint(Sketcher.Constraint("DistanceY", 0, 2, 0, 1, Q("6.5 mm")))
sketch19.addConstraint(Sketcher.Constraint("DistanceY", -1, 1, 0, 2, Q("58 mm")))
sketch19.addConstraint(Sketcher.Constraint("DistanceX", 1, 1, 1, 2, Q("14.387495 mm")))
sketch19.addConstraint(Sketcher.Constraint("DistanceX", 0, 2, -1, 1, Q("7.193747 mm")))
pad16 = doc.addObject("PartDesign::Pad", "Pad015")
body6.addObject(pad16)
pad16.Profile = sketch19
pad16.Length = 20

sketch20 = doc.addObject("Sketcher::SketchObject", "Sketch019")
body6.addObject(sketch20)
sketch20.AttachmentSupport = (doc.getObject("YZ_Plane005"), [""])
sketch20.MapMode = "FlatFace"
sketch20.AttachmentOffset = App.Placement(Vector(0, 0, -7.193747), App.Rotation())
sketch20.addGeometry(Part.Circle(Vector(-14.6, 61.2, 0), Vector(0, 0, 1), 2.6), False)
sketch20.addGeometry(Part.Circle(Vector(-23.6, 61.2, 0), Vector(0, 0, 1), 2.6), False)
sketch20.addConstraint(Sketcher.Constraint("Equal", 0, 1))
sketch20.addConstraint(Sketcher.Constraint("Horizontal", 0, 3, 1, 3))
sketch20.addConstraint(Sketcher.Constraint("Diameter", 0, Q("5.3 mm")))
sketch20.addConstraint(Sketcher.Constraint("DistanceX", 1, 3, 0, 3, Q("9 mm")))
sketch20.addConstraint(Sketcher.Constraint("DistanceX", 0, 3, -1, 1, Q("14.6 mm")))
sketch20.addConstraint(Sketcher.Constraint("DistanceY", -1, 1, 0, 3, Q("61.25 mm")))
pocket4 = doc.addObject("PartDesign::Pocket", "Pocket003")
body6.addObject(pocket4)
pocket4.Profile = sketch20
pocket4.Length = 10
pocket4.Reversed = True
body7 = doc.addObject("PartDesign::Body", "Body006")

sketch21 = doc.addObject("Sketcher::SketchObject", "Sketch020")
body7.addObject(sketch21)
sketch21.AttachmentSupport = (doc.getObject("XZ_Plane006"), [""])
sketch21.MapMode = "FlatFace"
sketch21.AttachmentOffset = App.Placement(Vector(0, 0, 9.1), App.Rotation())
add_polygon(sketch21, [(-7, 16), (-7, 10), (7, 10), (7, 16)])
sketch21.addConstraint(Sketcher.Constraint("Vertical", 0))
sketch21.addConstraint(Sketcher.Constraint("Horizontal", 1))
sketch21.addConstraint(Sketcher.Constraint("Vertical", 2))
sketch21.addConstraint(Sketcher.Constraint("Horizontal", 3))
sketch21.addConstraint(Sketcher.Constraint("DistanceY", 0, 2, 0, 1, Q("6.5 mm")))
sketch21.addConstraint(Sketcher.Constraint("DistanceY", -1, 1, 2, 2, Q("16 mm")))
sketch21.addConstraint(Sketcher.Constraint("DistanceX", 1, 1, 1, 2, Q("14.387495 mm")))
sketch21.addConstraint(Sketcher.Constraint("DistanceX", 0, 2, -1, 1, Q("7.193747 mm")))
pad17 = doc.addObject("PartDesign::Pad", "Pad016")
body7.addObject(pad17)
pad17.Profile = sketch21
pad17.Length = 20

sketch22 = doc.addObject("Sketcher::SketchObject", "Sketch021")
body7.addObject(sketch22)
sketch22.AttachmentSupport = (doc.getObject("YZ_Plane006"), [""])
sketch22.MapMode = "FlatFace"
sketch22.AttachmentOffset = App.Placement(Vector(0, 0, -7.193747), App.Rotation())
sketch22.addGeometry(Part.Circle(Vector(-14.6, 12.8, 0), Vector(0, 0, 1), 2.6), False)
sketch22.addGeometry(Part.Circle(Vector(-23.6, 12.8, 0), Vector(0, 0, 1), 2.6), False)
sketch22.addConstraint(Sketcher.Constraint("Equal", 0, 1))
sketch22.addConstraint(Sketcher.Constraint("Horizontal", 0, 3, 1, 3))
sketch22.addConstraint(Sketcher.Constraint("Diameter", 0, Q("5.3 mm")))
sketch22.addConstraint(Sketcher.Constraint("DistanceX", 1, 3, 0, 3, Q("9 mm")))
sketch22.addConstraint(Sketcher.Constraint("DistanceX", 0, 3, -1, 1, Q("14.6 mm")))
sketch22.addConstraint(Sketcher.Constraint("DistanceY", -1, 1, 0, 3, Q("12.75 mm")))
pocket5 = doc.addObject("PartDesign::Pocket", "Pocket004")
body7.addObject(pocket5)
pocket5.Profile = sketch22
pocket5.Length = 10
pocket5.Reversed = True

doc.recompute()
